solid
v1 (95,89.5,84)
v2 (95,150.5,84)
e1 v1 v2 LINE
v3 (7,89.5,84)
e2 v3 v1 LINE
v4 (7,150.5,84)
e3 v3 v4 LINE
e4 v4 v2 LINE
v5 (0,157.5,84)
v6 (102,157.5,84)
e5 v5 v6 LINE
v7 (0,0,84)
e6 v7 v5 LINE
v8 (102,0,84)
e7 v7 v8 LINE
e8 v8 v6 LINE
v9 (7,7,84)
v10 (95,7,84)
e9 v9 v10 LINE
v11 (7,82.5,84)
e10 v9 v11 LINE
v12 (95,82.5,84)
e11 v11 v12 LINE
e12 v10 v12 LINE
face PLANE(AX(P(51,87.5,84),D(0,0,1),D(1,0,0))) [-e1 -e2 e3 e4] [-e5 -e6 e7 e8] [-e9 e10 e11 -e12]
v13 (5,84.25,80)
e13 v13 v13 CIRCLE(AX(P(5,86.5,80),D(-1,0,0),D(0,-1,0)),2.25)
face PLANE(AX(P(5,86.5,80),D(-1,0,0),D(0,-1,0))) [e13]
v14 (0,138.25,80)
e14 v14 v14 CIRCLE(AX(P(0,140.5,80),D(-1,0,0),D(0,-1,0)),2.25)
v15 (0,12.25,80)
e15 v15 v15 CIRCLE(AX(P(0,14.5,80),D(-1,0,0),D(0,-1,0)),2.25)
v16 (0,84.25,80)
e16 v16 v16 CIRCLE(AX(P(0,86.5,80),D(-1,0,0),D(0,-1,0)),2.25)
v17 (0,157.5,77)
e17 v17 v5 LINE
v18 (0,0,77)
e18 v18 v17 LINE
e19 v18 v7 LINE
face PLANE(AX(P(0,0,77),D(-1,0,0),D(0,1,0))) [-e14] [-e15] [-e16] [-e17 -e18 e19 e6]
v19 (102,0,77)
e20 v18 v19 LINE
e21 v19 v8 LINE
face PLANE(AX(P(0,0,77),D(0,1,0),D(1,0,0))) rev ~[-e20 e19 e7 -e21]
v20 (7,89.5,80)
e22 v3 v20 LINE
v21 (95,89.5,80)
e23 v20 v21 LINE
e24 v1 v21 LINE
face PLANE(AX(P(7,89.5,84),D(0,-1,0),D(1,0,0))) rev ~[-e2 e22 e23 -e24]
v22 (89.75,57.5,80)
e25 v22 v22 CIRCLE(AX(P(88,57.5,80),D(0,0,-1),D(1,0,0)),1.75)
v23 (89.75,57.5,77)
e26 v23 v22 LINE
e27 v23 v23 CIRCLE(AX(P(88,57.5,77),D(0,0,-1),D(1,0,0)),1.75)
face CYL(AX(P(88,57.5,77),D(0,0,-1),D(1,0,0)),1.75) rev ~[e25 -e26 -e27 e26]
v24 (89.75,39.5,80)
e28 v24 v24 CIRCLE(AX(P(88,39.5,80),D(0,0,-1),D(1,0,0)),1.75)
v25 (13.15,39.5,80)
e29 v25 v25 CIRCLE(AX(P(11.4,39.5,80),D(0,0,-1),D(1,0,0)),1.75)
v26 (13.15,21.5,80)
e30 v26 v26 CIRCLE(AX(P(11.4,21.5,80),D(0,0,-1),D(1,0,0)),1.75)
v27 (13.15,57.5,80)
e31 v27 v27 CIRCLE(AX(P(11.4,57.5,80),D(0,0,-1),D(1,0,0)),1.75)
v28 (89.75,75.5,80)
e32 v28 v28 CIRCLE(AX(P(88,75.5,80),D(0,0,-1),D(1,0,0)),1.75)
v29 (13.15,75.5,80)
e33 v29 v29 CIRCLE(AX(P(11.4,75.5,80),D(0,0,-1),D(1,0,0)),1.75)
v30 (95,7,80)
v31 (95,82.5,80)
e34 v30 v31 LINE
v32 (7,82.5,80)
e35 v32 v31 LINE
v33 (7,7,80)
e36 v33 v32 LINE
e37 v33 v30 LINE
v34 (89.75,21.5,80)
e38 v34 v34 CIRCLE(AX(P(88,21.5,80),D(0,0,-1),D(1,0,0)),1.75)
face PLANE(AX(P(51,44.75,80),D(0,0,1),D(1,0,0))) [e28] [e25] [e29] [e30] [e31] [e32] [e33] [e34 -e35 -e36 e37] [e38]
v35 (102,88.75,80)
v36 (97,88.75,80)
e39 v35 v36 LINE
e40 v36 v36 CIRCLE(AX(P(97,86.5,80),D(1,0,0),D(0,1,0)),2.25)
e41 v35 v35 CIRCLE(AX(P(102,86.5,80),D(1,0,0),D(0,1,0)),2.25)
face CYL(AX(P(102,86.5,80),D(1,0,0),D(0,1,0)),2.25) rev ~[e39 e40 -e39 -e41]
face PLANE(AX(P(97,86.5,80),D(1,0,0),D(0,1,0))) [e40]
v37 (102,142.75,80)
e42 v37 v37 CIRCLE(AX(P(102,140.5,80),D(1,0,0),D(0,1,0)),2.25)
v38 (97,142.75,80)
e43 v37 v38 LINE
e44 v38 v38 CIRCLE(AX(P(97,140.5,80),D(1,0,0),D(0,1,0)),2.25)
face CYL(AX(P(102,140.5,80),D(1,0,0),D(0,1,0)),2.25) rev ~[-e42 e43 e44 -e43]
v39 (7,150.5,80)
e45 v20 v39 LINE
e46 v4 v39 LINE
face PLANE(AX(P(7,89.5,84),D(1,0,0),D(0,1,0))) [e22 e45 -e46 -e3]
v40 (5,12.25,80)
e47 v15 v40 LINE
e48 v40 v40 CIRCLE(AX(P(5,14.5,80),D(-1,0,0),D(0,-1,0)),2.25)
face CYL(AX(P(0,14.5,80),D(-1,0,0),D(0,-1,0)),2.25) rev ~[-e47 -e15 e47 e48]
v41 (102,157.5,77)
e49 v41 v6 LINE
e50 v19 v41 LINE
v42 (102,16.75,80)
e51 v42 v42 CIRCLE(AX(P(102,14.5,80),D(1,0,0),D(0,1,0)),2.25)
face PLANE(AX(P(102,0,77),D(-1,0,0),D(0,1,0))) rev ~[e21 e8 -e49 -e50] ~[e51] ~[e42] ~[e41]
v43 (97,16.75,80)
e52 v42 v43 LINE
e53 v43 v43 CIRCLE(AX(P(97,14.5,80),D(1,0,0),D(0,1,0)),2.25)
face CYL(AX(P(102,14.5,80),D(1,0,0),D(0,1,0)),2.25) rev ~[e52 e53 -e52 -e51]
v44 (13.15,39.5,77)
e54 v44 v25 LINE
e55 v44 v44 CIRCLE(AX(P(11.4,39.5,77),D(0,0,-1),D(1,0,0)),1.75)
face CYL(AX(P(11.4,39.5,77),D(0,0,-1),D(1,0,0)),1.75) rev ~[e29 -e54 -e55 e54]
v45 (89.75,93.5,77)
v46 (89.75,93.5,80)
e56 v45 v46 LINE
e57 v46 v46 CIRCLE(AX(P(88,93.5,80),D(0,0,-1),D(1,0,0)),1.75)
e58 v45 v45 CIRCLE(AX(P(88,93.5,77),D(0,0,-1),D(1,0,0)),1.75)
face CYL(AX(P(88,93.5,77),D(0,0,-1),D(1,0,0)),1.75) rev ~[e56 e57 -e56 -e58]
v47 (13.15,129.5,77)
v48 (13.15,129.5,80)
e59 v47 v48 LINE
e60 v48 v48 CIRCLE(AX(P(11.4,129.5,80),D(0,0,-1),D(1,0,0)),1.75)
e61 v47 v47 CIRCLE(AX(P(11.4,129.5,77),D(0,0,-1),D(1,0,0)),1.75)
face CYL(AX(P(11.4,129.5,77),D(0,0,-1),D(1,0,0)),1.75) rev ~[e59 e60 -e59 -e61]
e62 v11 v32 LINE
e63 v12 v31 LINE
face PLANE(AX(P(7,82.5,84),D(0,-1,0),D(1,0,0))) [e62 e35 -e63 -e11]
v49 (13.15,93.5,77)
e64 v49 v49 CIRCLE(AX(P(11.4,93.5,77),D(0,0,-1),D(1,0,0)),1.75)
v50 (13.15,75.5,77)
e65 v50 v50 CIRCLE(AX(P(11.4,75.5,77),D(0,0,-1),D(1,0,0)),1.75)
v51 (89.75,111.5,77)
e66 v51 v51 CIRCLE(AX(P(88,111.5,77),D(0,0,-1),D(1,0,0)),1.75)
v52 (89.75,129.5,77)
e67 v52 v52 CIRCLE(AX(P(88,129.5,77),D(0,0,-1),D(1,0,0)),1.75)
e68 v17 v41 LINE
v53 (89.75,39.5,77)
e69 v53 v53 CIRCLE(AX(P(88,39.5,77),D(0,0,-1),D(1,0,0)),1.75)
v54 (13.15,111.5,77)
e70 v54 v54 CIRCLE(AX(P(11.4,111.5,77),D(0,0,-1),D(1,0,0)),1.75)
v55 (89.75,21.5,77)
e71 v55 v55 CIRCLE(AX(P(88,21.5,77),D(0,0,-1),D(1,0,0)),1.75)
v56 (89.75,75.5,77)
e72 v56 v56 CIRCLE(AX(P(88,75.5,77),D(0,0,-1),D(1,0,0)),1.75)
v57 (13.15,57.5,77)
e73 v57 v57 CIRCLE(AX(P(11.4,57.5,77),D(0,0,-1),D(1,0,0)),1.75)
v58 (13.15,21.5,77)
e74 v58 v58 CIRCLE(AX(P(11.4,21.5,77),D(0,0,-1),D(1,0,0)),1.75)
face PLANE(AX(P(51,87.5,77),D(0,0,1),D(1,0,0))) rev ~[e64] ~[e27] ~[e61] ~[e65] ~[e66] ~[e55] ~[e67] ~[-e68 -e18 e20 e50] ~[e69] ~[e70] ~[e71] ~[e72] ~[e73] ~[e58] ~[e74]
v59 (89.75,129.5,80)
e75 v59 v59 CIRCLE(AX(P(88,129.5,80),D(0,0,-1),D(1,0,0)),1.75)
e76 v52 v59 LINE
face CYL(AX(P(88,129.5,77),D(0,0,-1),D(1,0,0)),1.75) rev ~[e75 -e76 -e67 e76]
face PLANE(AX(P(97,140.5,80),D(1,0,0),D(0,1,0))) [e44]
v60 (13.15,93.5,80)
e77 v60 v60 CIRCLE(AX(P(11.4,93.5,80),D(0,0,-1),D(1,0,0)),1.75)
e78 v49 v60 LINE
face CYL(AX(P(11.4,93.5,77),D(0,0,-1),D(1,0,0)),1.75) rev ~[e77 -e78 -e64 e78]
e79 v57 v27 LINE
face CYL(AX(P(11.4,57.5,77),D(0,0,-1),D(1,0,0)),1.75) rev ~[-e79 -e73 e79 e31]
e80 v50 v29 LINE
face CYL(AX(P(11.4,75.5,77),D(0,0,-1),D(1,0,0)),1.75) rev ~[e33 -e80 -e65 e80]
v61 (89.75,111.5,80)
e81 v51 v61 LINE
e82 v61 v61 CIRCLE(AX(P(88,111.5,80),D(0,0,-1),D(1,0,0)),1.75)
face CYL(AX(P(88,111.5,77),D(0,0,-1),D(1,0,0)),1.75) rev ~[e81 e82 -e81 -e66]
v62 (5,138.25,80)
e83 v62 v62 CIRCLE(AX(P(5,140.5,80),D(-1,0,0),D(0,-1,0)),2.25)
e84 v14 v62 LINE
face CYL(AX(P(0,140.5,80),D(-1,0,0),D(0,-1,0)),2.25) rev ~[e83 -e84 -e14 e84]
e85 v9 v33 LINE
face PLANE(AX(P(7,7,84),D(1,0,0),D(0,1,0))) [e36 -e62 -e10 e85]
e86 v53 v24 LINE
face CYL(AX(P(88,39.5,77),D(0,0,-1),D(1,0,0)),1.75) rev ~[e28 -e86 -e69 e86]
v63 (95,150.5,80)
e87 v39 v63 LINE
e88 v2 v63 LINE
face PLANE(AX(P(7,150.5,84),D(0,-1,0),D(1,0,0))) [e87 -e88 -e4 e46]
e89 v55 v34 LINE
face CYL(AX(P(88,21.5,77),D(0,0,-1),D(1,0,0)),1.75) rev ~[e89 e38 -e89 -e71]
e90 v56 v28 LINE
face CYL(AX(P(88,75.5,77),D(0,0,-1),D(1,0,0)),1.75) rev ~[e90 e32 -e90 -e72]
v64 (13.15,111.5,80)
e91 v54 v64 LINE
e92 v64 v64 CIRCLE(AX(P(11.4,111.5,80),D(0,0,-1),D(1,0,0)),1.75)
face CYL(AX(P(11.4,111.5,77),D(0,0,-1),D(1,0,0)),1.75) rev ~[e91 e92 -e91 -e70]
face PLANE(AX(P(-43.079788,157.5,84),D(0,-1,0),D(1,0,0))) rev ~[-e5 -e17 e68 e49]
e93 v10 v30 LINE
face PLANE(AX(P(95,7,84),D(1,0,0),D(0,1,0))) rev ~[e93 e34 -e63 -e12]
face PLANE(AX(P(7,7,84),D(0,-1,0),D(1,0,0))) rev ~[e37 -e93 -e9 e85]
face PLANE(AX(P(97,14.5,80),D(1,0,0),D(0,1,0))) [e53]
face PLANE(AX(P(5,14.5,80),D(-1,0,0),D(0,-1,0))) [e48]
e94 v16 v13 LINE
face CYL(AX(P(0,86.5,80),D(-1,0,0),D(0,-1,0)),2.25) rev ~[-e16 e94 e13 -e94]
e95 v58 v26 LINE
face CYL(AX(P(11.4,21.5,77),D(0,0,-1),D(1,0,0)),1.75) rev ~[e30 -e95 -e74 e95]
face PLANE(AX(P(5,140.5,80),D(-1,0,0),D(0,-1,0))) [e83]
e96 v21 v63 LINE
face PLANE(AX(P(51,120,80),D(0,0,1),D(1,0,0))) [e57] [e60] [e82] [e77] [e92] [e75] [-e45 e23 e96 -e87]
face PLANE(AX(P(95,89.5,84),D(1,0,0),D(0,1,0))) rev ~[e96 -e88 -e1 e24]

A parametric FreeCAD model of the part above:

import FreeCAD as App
import Part
import Sketcher
from FreeCAD import Vector
Q = App.Units.Quantity

doc = App.newDocument("Part")
body = doc.addObject("PartDesign::Body", "Body")

# Sketch on XY plane
sketch1 = body.newObject("Sketcher::SketchObject", "Sketch")
sketch1.AttachmentSupport = (doc.getObject("XY_Plane"), [""])
sketch1.MapMode = "FlatFace"
sketch1.addGeometry(Part.LineSegment(Vector(0, 175, 0), Vector(0, 0, 0)), False)
sketch1.addGeometry(Part.LineSegment(Vector(0, 0, 0), Vector(102, 0, 0)), False)
sketch1.addGeometry(Part.LineSegment(Vector(102, 0, 0), Vector(102, 175, 0)), False)
sketch1.addGeometry(Part.LineSegment(Vector(102, 175, 0), Vector(0, 175, 0)), False)
sketch1.addConstraint(Sketcher.Constraint("Coincident", 0, 2, 1, 1))
sketch1.addConstraint(Sketcher.Constraint("Coincident", 1, 2, 2, 1))
sketch1.addConstraint(Sketcher.Constraint("Coincident", 2, 2, 3, 1))
sketch1.addConstraint(Sketcher.Constraint("Coincident", 3, 2, 0, 1))
sketch1.addConstraint(Sketcher.Constraint("Vertical", 0))
sketch1.addConstraint(Sketcher.Constraint("Horizontal", 1))
sketch1.addConstraint(Sketcher.Constraint("Vertical", 2))
sketch1.addConstraint(Sketcher.Constraint("Horizontal", 3))
sketch1.addConstraint(Sketcher.Constraint("Coincident", 0, 2, -1, 1))
sketch1.addConstraint(Sketcher.Constraint("DistanceX", 1, 1, 1, 2, Q("102 mm")))
sketch1.addConstraint(Sketcher.Constraint("DistanceY", 0, 2, 0, 1, Q("175 mm")))
pad1 = body.newObject("PartDesign::Pad", "Pad")
pad1.Profile = sketch1
pad1.Length = 7

# Sketch on XY plane
sketch2 = body.newObject("Sketcher::SketchObject", "Sketch001")
sketch2.AttachmentSupport = (doc.getObject("XY_Plane"), [""])
sketch2.MapMode = "FlatFace"
sketch2.addGeometry(Part.Circle(Vector(88, 129.5, 0), Vector(0, 0, 1), 1.8), False)
sketch2.addGeometry(Part.Circle(Vector(11.4, 129.5, 0), Vector(0, 0, 1), 1.8), False)
sketch2.addGeometry(Part.Circle(Vector(88, 111.5, 0), Vector(0, 0, 1), 1.8), False)
sketch2.addGeometry(Part.Circle(Vector(11.4, 111.5, 0), Vector(0, 0, 1), 1.8), False)
sketch2.addGeometry(Part.Circle(Vector(88, 93.5, 0), Vector(0, 0, 1), 1.8), False)
sketch2.addGeometry(Part.Circle(Vector(11.4, 93.5, 0), Vector(0, 0, 1), 1.8), False)
sketch2.addGeometry(Part.Circle(Vector(11.4, 75.5, 0), Vector(0, 0, 1), 1.8), False)
sketch2.addGeometry(Part.Circle(Vector(88, 75.5, 0), Vector(0, 0, 1), 1.8), False)
sketch2.addGeometry(Part.Circle(Vector(88, 57.5, 0), Vector(0, 0, 1), 1.8), False)
sketch2.addGeometry(Part.Circle(Vector(88, 39.5, 0), Vector(0, 0, 1), 1.8), False)
sketch2.addGeometry(Part.Circle(Vector(11.4, 39.5, 0), Vector(0, 0, 1), 1.8), False)
sketch2.addGeometry(Part.Circle(Vector(11.4, 21.5, 0), Vector(0, 0, 1), 1.8), False)
sketch2.addGeometry(Part.Circle(Vector(88, 21.5, 0), Vector(0, 0, 1), 1.8), False)
sketch2.addGeometry(Part.Circle(Vector(11.4, 57.5, 0), Vector(0, 0, 1), 1.8), False)
sketch2.addConstraint(Sketcher.Constraint("Equal", 0, 1))
sketch2.addConstraint(Sketcher.Constraint("Equal", 1, 2))
sketch2.addConstraint(Sketcher.Constraint("Equal", 2, 3))
sketch2.addConstraint(Sketcher.Constraint("Equal", 3, 4))
sketch2.addConstraint(Sketcher.Constraint("Equal", 4, 5))
sketch2.addConstraint(Sketcher.Constraint("Equal", 5, 6))
sketch2.addConstraint(Sketcher.Constraint("Equal", 6, 7))
sketch2.addConstraint(Sketcher.Constraint("Equal", 7, 8))
sketch2.addConstraint(Sketcher.Constraint("Equal", 8, 9))
sketch2.addConstraint(Sketcher.Constraint("Equal", 9, 10))
sketch2.addConstraint(Sketcher.Constraint("Equal", 10, 11))
sketch2.addConstraint(Sketcher.Constraint("Equal", 11, 12))
sketch2.addConstraint(Sketcher.Constraint("Equal", 12, 13))
sketch2.addConstraint(Sketcher.Constraint("Horizontal", 0, 3, 1, 3))
sketch2.addConstraint(Sketcher.Constraint("Horizontal", 2, 3, 3, 3))
sketch2.addConstraint(Sketcher.Constraint("Horizontal", 4, 3, 5, 3))
sketch2.addConstraint(Sketcher.Constraint("Horizontal", 6, 3, 7, 3))
sketch2.addConstraint(Sketcher.Constraint("Horizontal", 9, 3, 10, 3))
sketch2.addConstraint(Sketcher.Constraint("Horizontal", 11, 3, 12, 3))
sketch2.addConstraint(Sketcher.Constraint("Horizontal", 8, 3, 13, 3))
sketch2.addConstraint(Sketcher.Constraint("Vertical", 0, 3, 2, 3))
sketch2.addConstraint(Sketcher.Constraint("Vertical", 1, 3, 3, 3))
sketch2.addConstraint(Sketcher.Constraint("Vertical", 2, 3, 4, 3))
sketch2.addConstraint(Sketcher.Constraint("Vertical", 3, 3, 5, 3))
sketch2.addConstraint(Sketcher.Constraint("Vertical", 5, 3, 6, 3))
sketch2.addConstraint(Sketcher.Constraint("Vertical", 4, 3, 7, 3))
sketch2.addConstraint(Sketcher.Constraint("Vertical", 7, 3, 8, 3))
sketch2.addConstraint(Sketcher.Constraint("Vertical", 8, 3, 9, 3))
sketch2.addConstraint(Sketcher.Constraint("Vertical", 6, 3, 10, 3))
sketch2.addConstraint(Sketcher.Constraint("Vertical", 10, 3, 11, 3))
sketch2.addConstraint(Sketcher.Constraint("Vertical", 9, 3, 12, 3))
sketch2.addConstraint(Sketcher.Constraint("Vertical", 11, 3, 13, 3))
sketch2.addConstraint(Sketcher.Constraint("Diameter", 0, Q("3.5 mm")))
sketch2.addConstraint(Sketcher.Constraint("DistanceX", -1, 1, 0, 3, Q("88 mm")))
sketch2.addConstraint(Sketcher.Constraint("DistanceY", 2, 3, 0, 3, Q("18 mm")))
sketch2.addConstraint(Sketcher.Constraint("DistanceY", 4, 3, 2, 3, Q("18 mm")))
sketch2.addConstraint(Sketcher.Constraint("DistanceY", 6, 3, 5, 3, Q("18 mm")))
sketch2.addConstraint(Sketcher.Constraint("DistanceY", 8, 3, 7, 3, Q("18 mm")))
sketch2.addConstraint(Sketcher.Constraint("DistanceY", 9, 3, 8, 3, Q("18 mm")))
sketch2.addConstraint(Sketcher.Constraint("DistanceY", 11, 3, 10, 3, Q("18 mm")))
sketch2.addConstraint(Sketcher.Constraint("DistanceY", -1, 1, 0, 3, Q("129.5 mm")))
sketch2.addConstraint(Sketcher.Constraint("DistanceX", -1, 1, 1, 3, Q("11.4 mm")))
pocket1 = body.newObject("PartDesign::Pocket", "Pocket")
pocket1.Profile = sketch2
pocket1.Type = "ThroughAll"
pocket1.Reversed = True

# Sketch on YZ plane
sketch3 = body.newObject("Sketcher::SketchObject", "Sketch002")
sketch3.AttachmentSupport = (doc.getObject("YZ_Plane"), [""])
sketch3.MapMode = "FlatFace"
sketch3.addGeometry(Part.Circle(Vector(14.5, 3, 0), Vector(0, 0, 1), 2.2), False)
sketch3.addGeometry(Part.Circle(Vector(86.5, 3, 0), Vector(0, 0, 1), 2.2), False)
sketch3.addGeometry(Part.Circle(Vector(140.5, 3, 0), Vector(0, 0, 1), 2.2), False)
sketch3.addConstraint(Sketcher.Constraint("Equal", 0, 1))
sketch3.addConstraint(Sketcher.Constraint("Equal", 1, 2))
sketch3.addConstraint(Sketcher.Constraint("Horizontal", 0, 3, 1, 3))
sketch3.addConstraint(Sketcher.Constraint("Horizontal", 1, 3, 2, 3))
sketch3.addConstraint(Sketcher.Constraint("Diameter", 0, Q("4.5 mm")))
sketch3.addConstraint(Sketcher.Constraint("DistanceY", -1, 1, 0, 3, Q("3 mm")))
sketch3.addConstraint(Sketcher.Constraint("DistanceX", 0, 3, 1, 3, Q("72 mm")))
sketch3.addConstraint(Sketcher.Constraint("DistanceX", 1, 3, 2, 3, Q("54 mm")))
sketch3.addConstraint(Sketcher.Constraint("DistanceX", -1, 1, 0, 3, Q("14.5 mm")))
pocket2 = body.newObject("PartDesign::Pocket", "Pocket001")
pocket2.Profile = sketch3
pocket2.Length = 5
pocket2.Reversed = True

# Sketch on YZ plane
sketch4 = body.newObject("Sketcher::SketchObject", "Sketch003")
sketch4.AttachmentSupport = (doc.getObject("YZ_Plane"), [""])
sketch4.MapMode = "FlatFace"
sketch4.AttachmentOffset = App.Placement(Vector(0, 0, 102), App.Rotation())
sketch4.addGeometry(Part.Circle(Vector(14.5, 3, 0), Vector(0, 0, 1), 2.2), False)
sketch4.addGeometry(Part.Circle(Vector(86.5, 3, 0), Vector(0, 0, 1), 2.2), False)
sketch4.addGeometry(Part.Circle(Vector(140.5, 3, 0), Vector(0, 0, 1), 2.2), False)
sketch4.addConstraint(Sketcher.Constraint("Equal", 0, 1))
sketch4.addConstraint(Sketcher.Constraint("Equal", 1, 2))
sketch4.addConstraint(Sketcher.Constraint("Horizontal", 0, 3, 1, 3))
sketch4.addConstraint(Sketcher.Constraint("Horizontal", 1, 3, 2, 3))
sketch4.addConstraint(Sketcher.Constraint("Diameter", 0, Q("4.5 mm")))
sketch4.addConstraint(Sketcher.Constraint("DistanceY", -1, 1, 0, 3, Q("3 mm")))
sketch4.addConstraint(Sketcher.Constraint("DistanceX", 0, 3, 1, 3, Q("72 mm")))
sketch4.addConstraint(Sketcher.Constraint("DistanceX", 1, 3, 2, 3, Q("54 mm")))
sketch4.addConstraint(Sketcher.Constraint("DistanceX", -1, 1, 0, 3, Q("14.5 mm")))
pocket3 = body.newObject("PartDesign::Pocket", "Pocket002")
pocket3.Profile = sketch4
pocket3.Length = 5

# Sketch on XY plane
sketch5 = body.newObject("Sketcher::SketchObject", "Sketch004")
sketch5.AttachmentSupport = (doc.getObject("XY_Plane"), [""])
sketch5.MapMode = "FlatFace"
sketch5.AttachmentOffset = App.Placement(Vector(0, 0, 7), App.Rotation())
sketch5.addGeometry(Part.LineSegment(Vector(7, 150, 0), Vector(7, 90, 0)), False)
sketch5.addGeometry(Part.LineSegment(Vector(7, 90, 0), Vector(95, 90, 0)), False)
sketch5.addGeometry(Part.LineSegment(Vector(95, 90, 0), Vector(95, 150, 0)), False)
sketch5.addGeometry(Part.LineSegment(Vector(95, 150, 0), Vector(7, 150, 0)), False)
sketch5.addGeometry(Part.LineSegment(Vector(7, 82, 0), Vector(7, 7, 0)), False)
sketch5.addGeometry(Part.LineSegment(Vector(7, 7, 0), Vector(95, 7, 0)), False)
sketch5.addGeometry(Part.LineSegment(Vector(95, 7, 0), Vector(95, 82, 0)), False)
sketch5.addGeometry(Part.LineSegment(Vector(95, 82, 0), Vector(7, 82, 0)), False)
sketch5.addConstraint(Sketcher.Constraint("Coincident", 0, 2, 1, 1))
sketch5.addConstraint(Sketcher.Constraint("Coincident", 1, 2, 2, 1))
sketch5.addConstraint(Sketcher.Constraint("Coincident", 2, 2, 3, 1))
sketch5.addConstraint(Sketcher.Constraint("Coincident", 3, 2, 0, 1))
sketch5.addConstraint(Sketcher.Constraint("Coincident", 4, 2, 5, 1))
sketch5.addConstraint(Sketcher.Constraint("Coincident", 5, 2, 6, 1))
sketch5.addConstraint(Sketcher.Constraint("Coincident", 6, 2, 7, 1))
sketch5.addConstraint(Sketcher.Constraint("Coincident", 7, 2, 4, 1))
sketch5.addConstraint(Sketcher.Constraint("Vertical", 0))
sketch5.addConstraint(Sketcher.Constraint("Horizontal", 1))
sketch5.addConstraint(Sketcher.Constraint("Vertical", 2))
sketch5.addConstraint(Sketcher.Constraint("Horizontal", 3))
sketch5.addConstraint(Sketcher.Constraint("Vertical", 4))
sketch5.addConstraint(Sketcher.Constraint("Horizontal", 5))
sketch5.addConstraint(Sketcher.Constraint("Vertical", 6))
sketch5.addConstraint(Sketcher.Constraint("Horizontal", 7))
sketch5.addConstraint(Sketcher.Constraint("Vertical", 3, 2, 4, 2))
sketch5.addConstraint(Sketcher.Constraint("Vertical", 2, 2, 5, 2))
sketch5.addConstraint(Sketcher.Constraint("DistanceX", 1, 1, 1, 2, Q("88 mm")))
sketch5.addConstraint(Sketcher.Constraint("DistanceY", 0, 2, 0, 1, Q("61 mm")))
sketch5.addConstraint(Sketcher.Constraint("DistanceY", 4, 2, 4, 1, Q("75.5 mm")))
sketch5.addConstraint(Sketcher.Constraint("DistanceX", -1, 1, 0, 2, Q("7 mm")))
sketch5.addConstraint(Sketcher.Constraint("DistanceY", -1, 1, 4, 2, Q("7 mm")))
sketch5.addConstraint(Sketcher.Constraint("DistanceY", 6, 2, 1, 2, Q("7 mm")))
pocket4 = body.newObject("PartDesign::Pocket", "Pocket003")
pocket4.Profile = sketch5
pocket4.Length = 4

# Sketch on XY plane
sketch6 = body.newObject("Sketcher::SketchObject", "Sketch005")
sketch6.AttachmentSupport = (doc.getObject("XY_Plane"), [""])
sketch6.MapMode = "FlatFace"
sketch6.AttachmentOffset = App.Placement(Vector(0, 0, 7), App.Rotation())
sketch6.addGeometry(Part.LineSegment(Vector(-43, 205, 0), Vector(-43, 157, 0)), False)
sketch6.addGeometry(Part.LineSegment(Vector(-43, 157, 0), Vector(143, 157, 0)), False)
sketch6.addGeometry(Part.LineSegment(Vector(143, 157, 0), Vector(143, 205, 0)), False)
sketch6.addGeometry(Part.LineSegment(Vector(143, 205, 0), Vector(-43, 205, 0)), False)
sketch6.addConstraint(Sketcher.Constraint("Coincident", 0, 2, 1, 1))
sketch6.addConstraint(Sketcher.Constraint("Coincident", 1, 2, 2, 1))
sketch6.addConstraint(Sketcher.Constraint("Coincident", 2, 2, 3, 1))
sketch6.addConstraint(Sketcher.Constraint("Coincident", 3, 2, 0, 1))
sketch6.addConstraint(Sketcher.Constraint("Vertical", 0))
sketch6.addConstraint(Sketcher.Constraint("Horizontal", 1))
sketch6.addConstraint(Sketcher.Constraint("Vertical", 2))
sketch6.addConstraint(Sketcher.Constraint("Horizontal", 3))
sketch6.addConstraint(Sketcher.Constraint("DistanceY", -1, 1, 0, 2, Q("157.5 mm")))
sketch6.addConstraint(Sketcher.Constraint("DistanceX", 1, 1, 1, 2, Q("186.33641 mm")))
sketch6.addConstraint(Sketcher.Constraint("DistanceY", 0, 2, 0, 1, Q("47.448593 mm")))
sketch6.addConstraint(Sketcher.Constraint("DistanceX", -1, 1, 1, 2, Q("143.256622 mm")))
pocket5 = body.newObject("PartDesign::Pocket", "Pocket004")
pocket5.Profile = sketch6
pocket5.Type = "ThroughAll"
body2 = doc.addObject("PartDesign::Body", "Body001")
doc.recompute()

body.Placement = App.Placement(Vector(0, 0, 77), App.Rotation(Vector(0, 0, 1), 0))
boolean = body2.newObject("PartDesign::Boolean", "Boolean")
boolean.Type = "Fuse"
boolean.addObjects([body])

doc.recompute()
